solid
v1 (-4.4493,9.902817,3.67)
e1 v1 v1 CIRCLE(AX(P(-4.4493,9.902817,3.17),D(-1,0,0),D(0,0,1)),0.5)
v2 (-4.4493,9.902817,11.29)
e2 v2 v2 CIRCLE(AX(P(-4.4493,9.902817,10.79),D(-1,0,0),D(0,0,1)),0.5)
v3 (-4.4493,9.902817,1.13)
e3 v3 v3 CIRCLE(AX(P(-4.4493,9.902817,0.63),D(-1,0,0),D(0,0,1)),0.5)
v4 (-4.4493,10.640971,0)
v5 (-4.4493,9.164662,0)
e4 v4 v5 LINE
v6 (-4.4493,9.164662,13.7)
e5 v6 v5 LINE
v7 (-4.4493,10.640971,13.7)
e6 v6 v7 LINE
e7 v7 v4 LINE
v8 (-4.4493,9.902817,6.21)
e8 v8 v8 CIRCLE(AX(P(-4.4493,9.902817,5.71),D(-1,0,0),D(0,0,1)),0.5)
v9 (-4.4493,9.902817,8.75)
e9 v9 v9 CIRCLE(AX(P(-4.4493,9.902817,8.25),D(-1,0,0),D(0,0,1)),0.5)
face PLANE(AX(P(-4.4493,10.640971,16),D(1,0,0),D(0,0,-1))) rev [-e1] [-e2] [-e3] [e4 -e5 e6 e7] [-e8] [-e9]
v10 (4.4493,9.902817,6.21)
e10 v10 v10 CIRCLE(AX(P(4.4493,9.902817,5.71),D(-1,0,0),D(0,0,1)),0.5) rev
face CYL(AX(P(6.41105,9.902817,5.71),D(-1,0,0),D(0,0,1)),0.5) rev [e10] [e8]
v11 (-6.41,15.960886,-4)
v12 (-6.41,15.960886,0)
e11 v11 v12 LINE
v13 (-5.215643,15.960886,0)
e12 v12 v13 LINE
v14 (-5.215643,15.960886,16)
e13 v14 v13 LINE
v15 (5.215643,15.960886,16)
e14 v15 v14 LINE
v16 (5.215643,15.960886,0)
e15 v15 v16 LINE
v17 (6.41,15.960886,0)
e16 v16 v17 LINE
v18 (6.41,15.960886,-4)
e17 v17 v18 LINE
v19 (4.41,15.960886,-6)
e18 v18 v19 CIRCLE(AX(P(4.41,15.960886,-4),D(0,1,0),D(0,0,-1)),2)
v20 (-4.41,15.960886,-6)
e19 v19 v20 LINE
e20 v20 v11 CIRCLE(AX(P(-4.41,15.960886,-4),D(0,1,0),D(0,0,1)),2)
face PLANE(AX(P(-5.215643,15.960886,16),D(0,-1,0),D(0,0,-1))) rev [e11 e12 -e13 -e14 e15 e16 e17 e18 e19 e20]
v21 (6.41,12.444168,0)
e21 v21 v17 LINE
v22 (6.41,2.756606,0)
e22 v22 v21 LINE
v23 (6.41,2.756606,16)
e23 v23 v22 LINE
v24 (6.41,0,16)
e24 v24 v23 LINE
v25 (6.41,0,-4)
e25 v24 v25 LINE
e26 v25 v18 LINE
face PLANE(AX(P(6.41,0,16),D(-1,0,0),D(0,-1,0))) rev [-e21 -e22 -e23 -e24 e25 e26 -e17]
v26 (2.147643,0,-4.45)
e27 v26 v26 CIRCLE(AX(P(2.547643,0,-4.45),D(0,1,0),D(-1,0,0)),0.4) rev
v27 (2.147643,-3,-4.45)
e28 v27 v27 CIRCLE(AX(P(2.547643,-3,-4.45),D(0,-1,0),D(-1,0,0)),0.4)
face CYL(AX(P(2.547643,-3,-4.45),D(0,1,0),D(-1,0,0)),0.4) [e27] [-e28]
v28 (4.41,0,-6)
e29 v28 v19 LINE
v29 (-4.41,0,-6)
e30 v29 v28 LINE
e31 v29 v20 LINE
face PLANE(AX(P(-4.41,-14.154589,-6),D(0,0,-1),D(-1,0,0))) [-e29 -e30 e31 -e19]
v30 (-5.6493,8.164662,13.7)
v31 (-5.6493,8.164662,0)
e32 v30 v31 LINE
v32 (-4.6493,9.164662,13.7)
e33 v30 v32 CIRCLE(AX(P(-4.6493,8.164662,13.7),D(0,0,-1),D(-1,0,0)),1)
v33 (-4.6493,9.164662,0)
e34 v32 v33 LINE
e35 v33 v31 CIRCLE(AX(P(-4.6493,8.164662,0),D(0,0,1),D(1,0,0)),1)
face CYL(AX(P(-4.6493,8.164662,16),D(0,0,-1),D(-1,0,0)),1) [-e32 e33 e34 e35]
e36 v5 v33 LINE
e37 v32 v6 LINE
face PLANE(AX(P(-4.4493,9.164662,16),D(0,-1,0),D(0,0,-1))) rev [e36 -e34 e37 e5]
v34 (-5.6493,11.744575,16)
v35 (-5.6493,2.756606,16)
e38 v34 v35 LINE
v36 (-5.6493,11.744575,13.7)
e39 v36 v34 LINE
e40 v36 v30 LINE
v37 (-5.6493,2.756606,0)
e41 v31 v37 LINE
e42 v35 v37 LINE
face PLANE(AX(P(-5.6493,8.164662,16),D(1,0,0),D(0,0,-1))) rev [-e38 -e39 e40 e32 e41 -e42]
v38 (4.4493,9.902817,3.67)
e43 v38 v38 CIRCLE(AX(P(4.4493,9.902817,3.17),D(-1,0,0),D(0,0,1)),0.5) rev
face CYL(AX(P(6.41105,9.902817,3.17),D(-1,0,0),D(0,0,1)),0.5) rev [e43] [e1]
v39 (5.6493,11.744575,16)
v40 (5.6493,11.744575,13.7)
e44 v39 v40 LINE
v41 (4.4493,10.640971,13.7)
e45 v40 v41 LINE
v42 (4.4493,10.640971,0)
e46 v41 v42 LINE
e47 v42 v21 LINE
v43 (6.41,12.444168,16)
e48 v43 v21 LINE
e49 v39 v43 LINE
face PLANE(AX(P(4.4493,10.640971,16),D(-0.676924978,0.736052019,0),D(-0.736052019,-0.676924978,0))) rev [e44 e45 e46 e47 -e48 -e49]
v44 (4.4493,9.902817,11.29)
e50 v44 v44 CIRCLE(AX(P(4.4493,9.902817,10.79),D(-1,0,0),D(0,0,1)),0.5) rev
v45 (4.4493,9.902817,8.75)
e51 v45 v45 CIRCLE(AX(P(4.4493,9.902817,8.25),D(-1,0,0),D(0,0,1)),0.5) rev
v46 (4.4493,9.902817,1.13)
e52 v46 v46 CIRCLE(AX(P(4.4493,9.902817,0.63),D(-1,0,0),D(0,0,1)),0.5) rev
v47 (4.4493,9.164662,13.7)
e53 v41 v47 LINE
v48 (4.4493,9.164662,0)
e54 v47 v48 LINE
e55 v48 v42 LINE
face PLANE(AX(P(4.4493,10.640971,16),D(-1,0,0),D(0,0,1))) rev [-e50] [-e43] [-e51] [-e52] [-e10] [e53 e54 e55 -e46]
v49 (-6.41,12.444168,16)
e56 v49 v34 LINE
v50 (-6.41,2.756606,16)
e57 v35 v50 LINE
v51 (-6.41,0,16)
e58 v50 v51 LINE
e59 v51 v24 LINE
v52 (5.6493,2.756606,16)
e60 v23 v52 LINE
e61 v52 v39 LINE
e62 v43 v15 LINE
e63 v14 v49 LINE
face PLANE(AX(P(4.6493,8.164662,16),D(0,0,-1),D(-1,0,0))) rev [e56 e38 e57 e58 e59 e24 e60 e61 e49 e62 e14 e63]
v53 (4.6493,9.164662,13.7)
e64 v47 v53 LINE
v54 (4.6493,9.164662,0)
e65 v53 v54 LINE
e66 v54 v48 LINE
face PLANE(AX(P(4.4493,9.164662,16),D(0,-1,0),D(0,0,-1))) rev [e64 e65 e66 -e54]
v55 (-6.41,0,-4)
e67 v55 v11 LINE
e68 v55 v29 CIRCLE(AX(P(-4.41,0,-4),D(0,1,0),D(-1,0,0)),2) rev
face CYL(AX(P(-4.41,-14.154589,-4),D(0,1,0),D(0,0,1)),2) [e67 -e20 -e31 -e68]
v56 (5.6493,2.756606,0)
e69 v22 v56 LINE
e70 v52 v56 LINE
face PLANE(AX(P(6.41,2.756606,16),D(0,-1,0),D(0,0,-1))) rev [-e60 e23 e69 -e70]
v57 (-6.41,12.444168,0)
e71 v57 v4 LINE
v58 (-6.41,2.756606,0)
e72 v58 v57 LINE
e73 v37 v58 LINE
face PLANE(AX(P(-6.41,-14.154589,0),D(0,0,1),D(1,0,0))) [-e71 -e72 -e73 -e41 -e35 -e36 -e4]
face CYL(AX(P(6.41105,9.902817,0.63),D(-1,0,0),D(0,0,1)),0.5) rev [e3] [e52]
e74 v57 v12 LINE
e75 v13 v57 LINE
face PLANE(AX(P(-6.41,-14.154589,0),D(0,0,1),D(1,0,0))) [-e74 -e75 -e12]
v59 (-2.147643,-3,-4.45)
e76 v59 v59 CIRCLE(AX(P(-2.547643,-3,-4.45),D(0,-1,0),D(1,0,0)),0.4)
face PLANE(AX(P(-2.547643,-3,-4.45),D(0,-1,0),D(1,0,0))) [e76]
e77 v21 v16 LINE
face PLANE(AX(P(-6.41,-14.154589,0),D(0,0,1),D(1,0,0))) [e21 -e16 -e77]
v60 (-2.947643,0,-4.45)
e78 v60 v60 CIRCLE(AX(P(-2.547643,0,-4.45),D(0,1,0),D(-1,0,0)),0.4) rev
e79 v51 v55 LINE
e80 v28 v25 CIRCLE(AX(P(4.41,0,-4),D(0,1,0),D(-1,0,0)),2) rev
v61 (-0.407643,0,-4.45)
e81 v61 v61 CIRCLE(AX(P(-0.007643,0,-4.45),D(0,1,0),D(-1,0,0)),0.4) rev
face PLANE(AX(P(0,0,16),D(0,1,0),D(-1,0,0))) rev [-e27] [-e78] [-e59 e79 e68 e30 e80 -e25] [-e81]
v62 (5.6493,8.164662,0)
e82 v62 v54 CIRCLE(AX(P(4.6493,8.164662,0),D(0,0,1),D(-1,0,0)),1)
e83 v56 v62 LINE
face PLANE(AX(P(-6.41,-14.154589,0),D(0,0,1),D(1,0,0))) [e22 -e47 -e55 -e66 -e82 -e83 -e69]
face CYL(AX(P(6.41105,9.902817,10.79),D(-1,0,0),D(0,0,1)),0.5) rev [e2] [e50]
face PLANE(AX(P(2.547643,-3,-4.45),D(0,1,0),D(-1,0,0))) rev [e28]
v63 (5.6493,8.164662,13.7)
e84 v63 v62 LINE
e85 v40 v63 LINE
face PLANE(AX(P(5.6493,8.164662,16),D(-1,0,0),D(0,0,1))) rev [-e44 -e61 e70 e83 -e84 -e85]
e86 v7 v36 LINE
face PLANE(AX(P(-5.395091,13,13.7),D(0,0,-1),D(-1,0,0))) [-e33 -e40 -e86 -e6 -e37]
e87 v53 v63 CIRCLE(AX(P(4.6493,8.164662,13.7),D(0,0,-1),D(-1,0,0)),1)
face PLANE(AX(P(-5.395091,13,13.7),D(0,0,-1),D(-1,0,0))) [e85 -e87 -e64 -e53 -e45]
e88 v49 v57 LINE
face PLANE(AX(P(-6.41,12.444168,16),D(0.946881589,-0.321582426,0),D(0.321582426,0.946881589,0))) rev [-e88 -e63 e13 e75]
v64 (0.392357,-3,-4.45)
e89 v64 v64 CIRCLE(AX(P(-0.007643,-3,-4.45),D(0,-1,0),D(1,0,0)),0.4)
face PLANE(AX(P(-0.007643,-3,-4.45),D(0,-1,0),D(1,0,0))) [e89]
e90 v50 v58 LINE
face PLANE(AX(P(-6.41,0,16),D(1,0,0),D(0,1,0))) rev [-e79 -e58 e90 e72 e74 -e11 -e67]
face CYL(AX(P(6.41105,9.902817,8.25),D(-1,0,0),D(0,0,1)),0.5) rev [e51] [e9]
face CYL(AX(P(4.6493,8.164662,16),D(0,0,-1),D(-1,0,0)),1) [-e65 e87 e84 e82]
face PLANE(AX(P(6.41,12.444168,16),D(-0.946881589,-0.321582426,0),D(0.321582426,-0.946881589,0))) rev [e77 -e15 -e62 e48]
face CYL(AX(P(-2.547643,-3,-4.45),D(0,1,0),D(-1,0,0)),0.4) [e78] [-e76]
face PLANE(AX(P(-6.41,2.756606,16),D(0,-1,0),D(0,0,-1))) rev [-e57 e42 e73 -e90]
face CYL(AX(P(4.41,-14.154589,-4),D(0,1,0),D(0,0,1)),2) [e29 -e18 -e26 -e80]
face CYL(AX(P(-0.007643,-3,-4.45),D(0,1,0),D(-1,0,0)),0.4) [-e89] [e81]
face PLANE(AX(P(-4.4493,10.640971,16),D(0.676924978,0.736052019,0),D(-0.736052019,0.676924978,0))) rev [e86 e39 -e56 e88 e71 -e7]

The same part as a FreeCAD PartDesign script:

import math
import FreeCAD as App
import Part
import Sketcher
from FreeCAD import Vector


def add_polygon(sketch, points):
    """Adds a closed chain of lines whose ends are joined by coincident constraints."""
    first, n = sketch.GeometryCount, len(points)
    for a, b in zip(points, points[1:] + points[:1]):
        sketch.addGeometry(Part.LineSegment(App.Vector(*a, 0), App.Vector(*b, 0)), False)
    for i in range(n):
        sketch.addConstraint(Sketcher.Constraint("Coincident", first + i, 2, first + (i + 1) % n, 1))

doc = App.newDocument("Part")
body = doc.addObject("PartDesign::Body", "Body")

sketch1 = body.newObject("Sketcher::SketchObject", "Sketch")
sketch1.AttachmentSupport = (doc.getObject("XY_Plane"), [""])
sketch1.MapMode = "FlatFace"
sketch1.addGeometry(Part.LineSegment(Vector(-4.45, 10.64, 0), Vector(-4.45, 9.16, 0)), False)
sketch1.addGeometry(Part.LineSegment(Vector(-4.45, 9.16, 0), Vector(-4.65, 9.16, 0)), False)
sketch1.addGeometry(Part.ArcOfCircle(Part.Circle(Vector(-4.65, 8.16, 0), Vector(0, 0, 1), 1), math.radians(90), math.radians(180)), False)
sketch1.addGeometry(Part.LineSegment(Vector(-5.65, 8.16, 0), Vector(-5.65, 2.76, 0)), False)
sketch1.addGeometry(Part.LineSegment(Vector(-5.65, 2.76, 0), Vector(-6.41, 2.76, 0)), False)
sketch1.addGeometry(Part.LineSegment(Vector(-6.41, 2.76, 0), Vector(-6.41, 0, 0)), False)
sketch1.addGeometry(Part.LineSegment(Vector(-6.41, 0, 0), Vector(6.41, 0, 0)), False)
sketch1.addGeometry(Part.LineSegment(Vector(6.41, 0, 0), Vector(6.41, 2.76, 0)), False)
sketch1.addGeometry(Part.LineSegment(Vector(6.41, 2.76, 0), Vector(5.65, 2.76, 0)), False)
sketch1.addGeometry(Part.LineSegment(Vector(5.65, 2.76, 0), Vector(5.65, 8.16, 0)), False)
sketch1.addGeometry(Part.ArcOfCircle(Part.Circle(Vector(4.65, 8.16, 0), Vector(0, 0, 1), 1), math.radians(0), math.radians(90)), False)
sketch1.addGeometry(Part.LineSegment(Vector(4.65, 9.16, 0), Vector(4.45, 9.16, 0)), False)
sketch1.addGeometry(Part.LineSegment(Vector(4.45, 9.16, 0), Vector(4.45, 10.64, 0)), False)
sketch1.addGeometry(Part.LineSegment(Vector(4.45, 10.64, 0), Vector(6.41, 12.44, 0)), False)
sketch1.addGeometry(Part.LineSegment(Vector(6.41, 12.44, 0), Vector(5.22, 15.96, 0)), False)
sketch1.addGeometry(Part.LineSegment(Vector(5.22, 15.96, 0), Vector(-5.22, 15.96, 0)), False)
sketch1.addGeometry(Part.LineSegment(Vector(-5.22, 15.96, 0), Vector(-6.41, 12.44, 0)), False)
sketch1.addGeometry(Part.LineSegment(Vector(-6.41, 12.44, 0), Vector(-4.45, 10.64, 0)), False)
sketch1.addConstraint(Sketcher.Constraint("Coincident", 0, 2, 1, 1))
sketch1.addConstraint(Sketcher.Constraint("Tangent", 1, 2, 2, 1))
sketch1.addConstraint(Sketcher.Constraint("Tangent", 2, 2, 3, 1))
sketch1.addConstraint(Sketcher.Constraint("Coincident", 3, 2, 4, 1))
sketch1.addConstraint(Sketcher.Constraint("Coincident", 4, 2, 5, 1))
sketch1.addConstraint(Sketcher.Constraint("Coincident", 5, 2, 6, 1))
sketch1.addConstraint(Sketcher.Constraint("Coincident", 6, 2, 7, 1))
sketch1.addConstraint(Sketcher.Constraint("Coincident", 7, 2, 8, 1))
sketch1.addConstraint(Sketcher.Constraint("Coincident", 8, 2, 9, 1))
sketch1.addConstraint(Sketcher.Constraint("Tangent", 9, 2, 10, 1))
sketch1.addConstraint(Sketcher.Constraint("Tangent", 10, 2, 11, 1))
sketch1.addConstraint(Sketcher.Constraint("Coincident", 11, 2, 12, 1))
sketch1.addConstraint(Sketcher.Constraint("Coincident", 12, 2, 13, 1))
sketch1.addConstraint(Sketcher.Constraint("Coincident", 13, 2, 14, 1))
sketch1.addConstraint(Sketcher.Constraint("Coincident", 14, 2, 15, 1))
sketch1.addConstraint(Sketcher.Constraint("Coincident", 15, 2, 16, 1))
sketch1.addConstraint(Sketcher.Constraint("Coincident", 16, 2, 17, 1))
sketch1.addConstraint(Sketcher.Constraint("Coincident", 17, 2, 0, 1))
sketch1.addConstraint(Sketcher.Constraint("Vertical", 0))
sketch1.addConstraint(Sketcher.Constraint("Horizontal", 1))
sketch1.addConstraint(Sketcher.Constraint("Vertical", 3))
sketch1.addConstraint(Sketcher.Constraint("Horizontal", 4))
sketch1.addConstraint(Sketcher.Constraint("Vertical", 5))
sketch1.addConstraint(Sketcher.Constraint("Horizontal", 6))
sketch1.addConstraint(Sketcher.Constraint("Vertical", 7))
sketch1.addConstraint(Sketcher.Constraint("Horizontal", 8))
sketch1.addConstraint(Sketcher.Constraint("Vertical", 9))
sketch1.addConstraint(Sketcher.Constraint("Horizontal", 11))
sketch1.addConstraint(Sketcher.Constraint("Vertical", 12))
sketch1.addConstraint(Sketcher.Constraint("Horizontal", 15))
sketch1.addConstraint(Sketcher.Constraint("Equal", 2, 10))
sketch1.addConstraint(Sketcher.Constraint("Symmetric", 5, 2, 6, 2, -1, 1))
sketch1.addConstraint(Sketcher.Constraint("Symmetric", 2, 3, 10, 3, -2))
sketch1.addConstraint(Sketcher.Constraint("Symmetric", 13, 2, 16, 2, -2))
sketch1.addConstraint(Sketcher.Constraint("Symmetric", 12, 2, 17, 2, -2))
sketch1.addConstraint(Sketcher.Constraint("Horizontal", 4, 2, 7, 2))
sketch1.addConstraint(Sketcher.Constraint("Vertical", 7, 2, 13, 2))
sketch1.addConstraint(Sketcher.Constraint("Equal", 14, 16))
sketch1.addConstraint(Sketcher.Constraint("Radius", 2, 1.0))
sketch1.addConstraint(Sketcher.Constraint("DistanceX", 1, 2, 1, 1, 0.2))
sketch1.addConstraint(Sketcher.Constraint("DistanceX", 6, 1, 6, 2, 12.82))
sketch1.addConstraint(Sketcher.Constraint("Distance", 14, 3.714))
sketch1.addConstraint(Sketcher.Constraint("DistanceX", 4, 2, 4, 1, 0.7607))
sketch1.addConstraint(Sketcher.Constraint("DistanceY", 0, 2, 0, 1, 1.476309))
sketch1.addConstraint(Sketcher.Constraint("DistanceX", 15, 2, 15, 1, 10.431286))
sketch1.addConstraint(Sketcher.Constraint("DistanceY", 3, 2, 3, 1, 5.408056))
sketch1.addConstraint(Sketcher.Constraint("DistanceY", 5, 2, 5, 1, 2.756606))
sketch1.addConstraint(Sketcher.Constraint("DistanceY", -1, 1, 13, 2, 12.444168))
pad1 = body.newObject("PartDesign::Pad", "Pad")
pad1.Profile = sketch1
pad1.Length = 16

sketch2 = body.newObject("Sketcher::SketchObject", "Sketch001")
sketch2.AttachmentSupport = (doc.getObject("XZ_Plane"), [""])
sketch2.MapMode = "FlatFace"
sketch2.AttachmentOffset = App.Placement(Vector(0, 0, -15.960886), App.Rotation())
sketch2.addGeometry(Part.LineSegment(Vector(-6.4, 0, 0), Vector(6.4, 0, 0)), False)
sketch2.addGeometry(Part.LineSegment(Vector(6.4, 0, 0), Vector(6.4, -4, 0)), False)
sketch2.addGeometry(Part.ArcOfCircle(Part.Circle(Vector(4.4, -4, 0), Vector(0, 0, 1), 2), math.radians(-90), math.radians(0)), False)
sketch2.addGeometry(Part.LineSegment(Vector(4.4, -6, 0), Vector(-4.4, -6, 0)), False)
sketch2.addGeometry(Part.ArcOfCircle(Part.Circle(Vector(-4.4, -4, 0), Vector(0, 0, 1), 2), math.radians(-180), math.radians(-90)), False)
sketch2.addGeometry(Part.LineSegment(Vector(-6.4, -4, 0), Vector(-6.4, 0, 0)), False)
sketch2.addConstraint(Sketcher.Constraint("Coincident", 0, 2, 1, 1))
sketch2.addConstraint(Sketcher.Constraint("Tangent", 1, 2, 2, 2))
sketch2.addConstraint(Sketcher.Constraint("Tangent", 2, 1, 3, 1))
sketch2.addConstraint(Sketcher.Constraint("Tangent", 3, 2, 4, 2))
sketch2.addConstraint(Sketcher.Constraint("Tangent", 4, 1, 5, 1))
sketch2.addConstraint(Sketcher.Constraint("Coincident", 5, 2, 0, 1))
sketch2.addConstraint(Sketcher.Constraint("Horizontal", 0))
sketch2.addConstraint(Sketcher.Constraint("Vertical", 1))
sketch2.addConstraint(Sketcher.Constraint("Horizontal", 3))
sketch2.addConstraint(Sketcher.Constraint("Vertical", 5))
sketch2.addConstraint(Sketcher.Constraint("Equal", 2, 4))
sketch2.addConstraint(Sketcher.Constraint("Symmetric", 0, 2, 5, 2, -1, 1))
sketch2.addConstraint(Sketcher.Constraint("Radius", 2, 2.0))
sketch2.addConstraint(Sketcher.Constraint("DistanceY", 1, 2, 1, 1, 4.0))
sketch2.addConstraint(Sketcher.Constraint("DistanceX", 0, 1, 0, 2, 12.82))
pad2 = body.newObject("PartDesign::Pad", "Pad001")
pad2.Profile = sketch2
pad2.Length = 15.960886

sketch3 = body.newObject("Sketcher::SketchObject", "Sketch002")
sketch3.AttachmentSupport = (doc.getObject("YZ_Plane"), [""])
sketch3.MapMode = "FlatFace"
sketch3.AttachmentOffset = App.Placement(Vector(0, 0, -4.4493), App.Rotation())
sketch3.addGeometry(Part.Circle(Vector(9.9, 0.6, 0), Vector(0, 0, 1), 0.5), False)
sketch3.addConstraint(Sketcher.Constraint("Diameter", 0, 1.0))
sketch3.addConstraint(Sketcher.Constraint("DistanceY", -1, 1, 0, 3, 0.63))
sketch3.addConstraint(Sketcher.Constraint("DistanceX", -1, 1, 0, 3, 9.902817))
pocket1 = body.newObject("PartDesign::Pocket", "Pocket")
pocket1.Profile = sketch3
pocket1.Length = 10.0986
pocket1.Reversed = True
doc.recompute()

linearpattern = body.newObject("PartDesign::LinearPattern", "LinearPattern")
linearpattern.Originals = [pocket1]
linearpattern.Direction = (doc.getObject("Z_Axis"), [""])
linearpattern.Mode = "offset"
linearpattern.Offset = 2.54
linearpattern.Occurrences = 5
body.Tip = linearpattern

sketch4 = body.newObject("Sketcher::SketchObject", "Sketch003")
sketch4.AttachmentSupport = (doc.getObject("XZ_Plane"), [""])
sketch4.MapMode = "FlatFace"
add_polygon(sketch4, [(-5.4, 16), (-5.4, 13.7), (5, 13.7), (5, 16)])
sketch4.addConstraint(Sketcher.Constraint("Vertical", 0))
sketch4.addConstraint(Sketcher.Constraint("Horizontal", 1))
sketch4.addConstraint(Sketcher.Constraint("Vertical", 2))
sketch4.addConstraint(Sketcher.Constraint("Horizontal", 3))
sketch4.addConstraint(Sketcher.Constraint("DistanceY", 0, 2, 0, 1, 2.3))
sketch4.addConstraint(Sketcher.Constraint("DistanceY", -1, 1, 2, 2, 16.0))
sketch4.addConstraint(Sketcher.Constraint("DistanceX", -1, 1, 1, 2, 5.014102))
sketch4.addConstraint(Sketcher.Constraint("DistanceX", 1, 1, 1, 2, 10.409192))
pad3 = body.newObject("PartDesign::Pad", "Pad002")
pad3.Profile = sketch4
pad3.Length = 13
pad3.Reversed = True

sketch5 = body.newObject("Sketcher::SketchObject", "Sketch004")
sketch5.AttachmentSupport = (doc.getObject("XZ_Plane"), [""])
sketch5.MapMode = "FlatFace"
add_polygon(sketch5, [(-5.6, 16), (-5.6, 13.7), (5.6, 13.7), (5.6, 16)])
sketch5.addConstraint(Sketcher.Constraint("Vertical", 0))
sketch5.addConstraint(Sketcher.Constraint("Horizontal", 1))
sketch5.addConstraint(Sketcher.Constraint("Vertical", 2))
sketch5.addConstraint(Sketcher.Constraint("Horizontal", 3))
sketch5.addConstraint(Sketcher.Constraint("DistanceY", 0, 2, 0, 1, 2.3))
sketch5.addConstraint(Sketcher.Constraint("DistanceY", -1, 1, 2, 2, 16.0))
sketch5.addConstraint(Sketcher.Constraint("DistanceX", 1, 1, 1, 2, 11.2986))
sketch5.addConstraint(Sketcher.Constraint("DistanceX", 0, 2, -1, 1, 5.6493))
pad4 = body.newObject("PartDesign::Pad", "Pad003")
pad4.Profile = sketch5
pad4.Length = 13
pad4.Reversed = True

sketch6 = body.newObject("Sketcher::SketchObject", "Sketch005")
sketch6.AttachmentSupport = (doc.getObject("XZ_Plane"), [""])
sketch6.MapMode = "FlatFace"
sketch6.addGeometry(Part.Circle(Vector(-0.01, -4.45, 0), Vector(0, 0, 1), 0.4), False)
sketch6.addGeometry(Part.Circle(Vector(-2.55, -4.45, 0), Vector(0, 0, 1), 0.4), False)
sketch6.addGeometry(Part.Circle(Vector(2.55, -4.45, 0), Vector(0, 0, 1), 0.4), False)
sketch6.addConstraint(Sketcher.Constraint("Equal", 0, 1))
sketch6.addConstraint(Sketcher.Constraint("Equal", 1, 2))
sketch6.addConstraint(Sketcher.Constraint("Symmetric", 1, 3, 2, 3, -2))
sketch6.addConstraint(Sketcher.Constraint("Horizontal", 0, 3, 1, 3))
sketch6.addConstraint(Sketcher.Constraint("Diameter", 0, 0.8))
sketch6.addConstraint(Sketcher.Constraint("DistanceY", 0, 3, -1, 1, 4.45))
sketch6.addConstraint(Sketcher.Constraint("DistanceX", 1, 3, 0, 3, 2.54))
sketch6.addConstraint(Sketcher.Constraint("DistanceX", 0, 3, -1, 1, 0.007643))
pad5 = body.newObject("PartDesign::Pad", "Pad004")
pad5.Profile = sketch6
pad5.Length = 3

doc.recompute()
